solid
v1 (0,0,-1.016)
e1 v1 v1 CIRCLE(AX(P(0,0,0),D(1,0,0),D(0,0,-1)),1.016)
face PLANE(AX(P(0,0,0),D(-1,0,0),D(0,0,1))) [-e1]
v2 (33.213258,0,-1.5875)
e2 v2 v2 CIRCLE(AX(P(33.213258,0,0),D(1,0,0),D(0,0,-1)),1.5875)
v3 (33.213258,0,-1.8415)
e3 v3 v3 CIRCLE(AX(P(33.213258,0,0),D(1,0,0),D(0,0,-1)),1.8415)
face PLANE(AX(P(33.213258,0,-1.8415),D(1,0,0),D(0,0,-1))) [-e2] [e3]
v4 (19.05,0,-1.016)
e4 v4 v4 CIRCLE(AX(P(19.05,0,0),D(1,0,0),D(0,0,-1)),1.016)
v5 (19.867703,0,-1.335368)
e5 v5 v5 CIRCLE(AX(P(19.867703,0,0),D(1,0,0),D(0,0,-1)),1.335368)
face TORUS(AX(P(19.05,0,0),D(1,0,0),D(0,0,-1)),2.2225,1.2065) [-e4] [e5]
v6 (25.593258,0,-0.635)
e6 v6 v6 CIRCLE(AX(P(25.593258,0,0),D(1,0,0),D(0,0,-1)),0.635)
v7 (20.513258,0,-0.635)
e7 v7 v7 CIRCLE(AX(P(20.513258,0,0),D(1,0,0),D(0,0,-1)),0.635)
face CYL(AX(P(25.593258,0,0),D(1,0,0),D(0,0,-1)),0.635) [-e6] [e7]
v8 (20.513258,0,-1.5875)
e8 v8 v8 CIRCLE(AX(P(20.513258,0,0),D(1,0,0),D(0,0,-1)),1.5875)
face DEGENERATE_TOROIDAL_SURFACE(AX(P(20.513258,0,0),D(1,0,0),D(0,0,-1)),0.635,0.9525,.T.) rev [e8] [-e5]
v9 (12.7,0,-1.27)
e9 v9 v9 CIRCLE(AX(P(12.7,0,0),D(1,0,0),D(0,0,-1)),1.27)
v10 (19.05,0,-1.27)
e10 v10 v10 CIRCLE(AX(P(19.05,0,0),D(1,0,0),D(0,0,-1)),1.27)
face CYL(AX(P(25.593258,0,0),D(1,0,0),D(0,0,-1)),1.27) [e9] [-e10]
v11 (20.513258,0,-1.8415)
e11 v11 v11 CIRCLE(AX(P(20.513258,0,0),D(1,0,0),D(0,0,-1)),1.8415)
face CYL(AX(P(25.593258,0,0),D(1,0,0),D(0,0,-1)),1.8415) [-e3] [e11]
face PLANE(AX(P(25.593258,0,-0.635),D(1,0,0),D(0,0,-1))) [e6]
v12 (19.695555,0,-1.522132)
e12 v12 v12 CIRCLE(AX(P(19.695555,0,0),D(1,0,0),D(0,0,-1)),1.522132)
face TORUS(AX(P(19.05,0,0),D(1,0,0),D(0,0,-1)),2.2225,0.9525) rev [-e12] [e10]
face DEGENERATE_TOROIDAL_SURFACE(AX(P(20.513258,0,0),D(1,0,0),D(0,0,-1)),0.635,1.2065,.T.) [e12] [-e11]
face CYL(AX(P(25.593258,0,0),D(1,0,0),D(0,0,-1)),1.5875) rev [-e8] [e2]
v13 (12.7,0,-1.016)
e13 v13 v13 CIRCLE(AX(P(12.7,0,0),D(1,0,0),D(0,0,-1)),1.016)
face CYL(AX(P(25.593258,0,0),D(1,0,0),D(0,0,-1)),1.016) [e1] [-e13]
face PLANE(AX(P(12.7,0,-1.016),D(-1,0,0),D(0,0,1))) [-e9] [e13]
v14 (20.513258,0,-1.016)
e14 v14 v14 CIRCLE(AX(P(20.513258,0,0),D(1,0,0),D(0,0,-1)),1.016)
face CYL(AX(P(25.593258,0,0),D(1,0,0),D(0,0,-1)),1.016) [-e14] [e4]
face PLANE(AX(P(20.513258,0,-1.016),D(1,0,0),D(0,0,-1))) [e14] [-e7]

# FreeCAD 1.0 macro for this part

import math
import FreeCAD as App
import Part
import Sketcher
Q = App.Units.Quantity

doc = App.newDocument("Part")
body = doc.addObject("PartDesign::Body", "Body")

sketch1 = body.newObject("Sketcher::SketchObject", "Sketch")
sketch1.AttachmentSupport = (doc.getObject("XZ_Plane"), [""])
sketch1.MapMode = "FlatFace"
sketch1.addGeometry(Part.LineSegment(App.Vector(0, -1.016, 0), App.Vector(0, 0, 0)), False)
sketch1.addGeometry(Part.LineSegment(App.Vector(0, 0, 0), App.Vector(25.593258, 0, 0)), False)
sketch1.addGeometry(Part.LineSegment(App.Vector(25.593258, 0, 0), App.Vector(25.593258, -0.635, 0)), False)
sketch1.addGeometry(Part.LineSegment(App.Vector(25.593258, -0.635, 0), App.Vector(20.513258, -0.635, 0)), False)
sketch1.addGeometry(Part.LineSegment(App.Vector(20.513258, -0.635, 0), App.Vector(20.513258, -1.016, 0)), False)
sketch1.addGeometry(Part.LineSegment(App.Vector(20.513258, -1.016, 0), App.Vector(19.05, -1.016, 0)), False)
sketch1.addGeometry(Part.ArcOfCircle(Part.Circle(App.Vector(19.05, -2.2225, 0), App.Vector(0, 0, 1), 1.2065), math.radians(47.332075), math.radians(90)), False)
sketch1.addGeometry(Part.ArcOfCircle(Part.Circle(App.Vector(20.513258, -0.635, 0), App.Vector(0, 0, 1), 0.9525), math.radians(-132.667926), math.radians(-90)), False)
sketch1.addGeometry(Part.LineSegment(App.Vector(20.513258, -1.5875, 0), App.Vector(33.213258, -1.5875, 0)), False)
sketch1.addGeometry(Part.LineSegment(App.Vector(33.213258, -1.5875, 0), App.Vector(33.213258, -1.8415, 0)), False)
sketch1.addGeometry(Part.LineSegment(App.Vector(33.213258, -1.8415, 0), App.Vector(20.513258, -1.8415, 0)), False)
sketch1.addGeometry(Part.ArcOfCircle(Part.Circle(App.Vector(20.513258, -0.635, 0), App.Vector(0, 0, 1), 1.2065), math.radians(-132.667925), math.radians(-90)), False)
sketch1.addGeometry(Part.ArcOfCircle(Part.Circle(App.Vector(19.05, -2.2225, 0), App.Vector(0, 0, 1), 0.9525), math.radians(47.332074), math.radians(90)), False)
sketch1.addGeometry(Part.LineSegment(App.Vector(19.05, -1.27, 0), App.Vector(12.7, -1.27, 0)), False)
sketch1.addGeometry(Part.LineSegment(App.Vector(12.7, -1.27, 0), App.Vector(12.7, -1.016, 0)), False)
sketch1.addGeometry(Part.LineSegment(App.Vector(12.7, -1.016, 0), App.Vector(0, -1.016, 0)), False)
sketch1.addConstraint(Sketcher.Constraint("Coincident", 0, 2, 1, 1))
sketch1.addConstraint(Sketcher.Constraint("Coincident", 1, 2, 2, 1))
sketch1.addConstraint(Sketcher.Constraint("Coincident", 2, 2, 3, 1))
sketch1.addConstraint(Sketcher.Constraint("Coincident", 3, 2, 4, 1))
sketch1.addConstraint(Sketcher.Constraint("Coincident", 4, 2, 5, 1))
sketch1.addConstraint(Sketcher.Constraint("Tangent", 5, 2, 6, 2))
sketch1.addConstraint(Sketcher.Constraint("Tangent", 6, 1, 7, 1))
sketch1.addConstraint(Sketcher.Constraint("Tangent", 7, 2, 8, 1))
sketch1.addConstraint(Sketcher.Constraint("Coincident", 8, 2, 9, 1))
sketch1.addConstraint(Sketcher.Constraint("Coincident", 9, 2, 10, 1))
sketch1.addConstraint(Sketcher.Constraint("Tangent", 10, 2, 11, 2))
sketch1.addConstraint(Sketcher.Constraint("Tangent", 11, 1, 12, 1))
sketch1.addConstraint(Sketcher.Constraint("Tangent", 12, 2, 13, 1))
sketch1.addConstraint(Sketcher.Constraint("Coincident", 13, 2, 14, 1))
sketch1.addConstraint(Sketcher.Constraint("Coincident", 14, 2, 15, 1))
sketch1.addConstraint(Sketcher.Constraint("Coincident", 15, 2, 0, 1))
sketch1.addConstraint(Sketcher.Constraint("Vertical", 0))
sketch1.addConstraint(Sketcher.Constraint("Horizontal", 1))
sketch1.addConstraint(Sketcher.Constraint("Vertical", 2))
sketch1.addConstraint(Sketcher.Constraint("Horizontal", 3))
sketch1.addConstraint(Sketcher.Constraint("Vertical", 4))
sketch1.addConstraint(Sketcher.Constraint("Horizontal", 5))
sketch1.addConstraint(Sketcher.Constraint("Horizontal", 8))
sketch1.addConstraint(Sketcher.Constraint("Vertical", 9))
sketch1.addConstraint(Sketcher.Constraint("Horizontal", 10))
sketch1.addConstraint(Sketcher.Constraint("Horizontal", 13))
sketch1.addConstraint(Sketcher.Constraint("Vertical", 14))
sketch1.addConstraint(Sketcher.Constraint("Horizontal", 15))
sketch1.addConstraint(Sketcher.Constraint("Coincident", 0, 2, -1, 1))
sketch1.addConstraint(Sketcher.Constraint("Coincident", 11, 3, 7, 3))
sketch1.addConstraint(Sketcher.Constraint("Coincident", 12, 3, 6, 3))
sketch1.addConstraint(Sketcher.Constraint("Coincident", 3, 2, 7, 3))
sketch1.addConstraint(Sketcher.Constraint("Equal", 6, 11))
sketch1.addConstraint(Sketcher.Constraint("Horizontal", 5, 2, 14, 2))
sketch1.addConstraint(Sketcher.Constraint("Equal", 10, 15))
sketch1.addConstraint(Sketcher.Constraint("DistanceX", 3, 2, 3, 1, Q("0.2 in")))
sketch1.addConstraint(Sketcher.Constraint("DistanceX", 8, 1, 8, 2, Q("0.5 in")))
sketch1.addConstraint(Sketcher.Constraint("DistanceX", 13, 2, 13, 1, Q("0.25 in")))
sketch1.addConstraint(Sketcher.Constraint("DistanceY", 0, 1, 0, 2, Q("0.04 in")))
sketch1.addConstraint(Sketcher.Constraint("DistanceY", 9, 2, 9, 1, Q("0.01 in")))
sketch1.addConstraint(Sketcher.Constraint("Radius", 6, Q("0.0475 in")))
sketch1.addConstraint(Sketcher.Constraint("DistanceY", 2, 2, 2, 1, Q("0.025 in")))
revolution = body.newObject("PartDesign::Revolution", "Revolution")
revolution.Profile = sketch1
revolution.ReferenceAxis = (sketch1, ["H_Axis"])
revolution.Angle = 360

doc.recompute()
